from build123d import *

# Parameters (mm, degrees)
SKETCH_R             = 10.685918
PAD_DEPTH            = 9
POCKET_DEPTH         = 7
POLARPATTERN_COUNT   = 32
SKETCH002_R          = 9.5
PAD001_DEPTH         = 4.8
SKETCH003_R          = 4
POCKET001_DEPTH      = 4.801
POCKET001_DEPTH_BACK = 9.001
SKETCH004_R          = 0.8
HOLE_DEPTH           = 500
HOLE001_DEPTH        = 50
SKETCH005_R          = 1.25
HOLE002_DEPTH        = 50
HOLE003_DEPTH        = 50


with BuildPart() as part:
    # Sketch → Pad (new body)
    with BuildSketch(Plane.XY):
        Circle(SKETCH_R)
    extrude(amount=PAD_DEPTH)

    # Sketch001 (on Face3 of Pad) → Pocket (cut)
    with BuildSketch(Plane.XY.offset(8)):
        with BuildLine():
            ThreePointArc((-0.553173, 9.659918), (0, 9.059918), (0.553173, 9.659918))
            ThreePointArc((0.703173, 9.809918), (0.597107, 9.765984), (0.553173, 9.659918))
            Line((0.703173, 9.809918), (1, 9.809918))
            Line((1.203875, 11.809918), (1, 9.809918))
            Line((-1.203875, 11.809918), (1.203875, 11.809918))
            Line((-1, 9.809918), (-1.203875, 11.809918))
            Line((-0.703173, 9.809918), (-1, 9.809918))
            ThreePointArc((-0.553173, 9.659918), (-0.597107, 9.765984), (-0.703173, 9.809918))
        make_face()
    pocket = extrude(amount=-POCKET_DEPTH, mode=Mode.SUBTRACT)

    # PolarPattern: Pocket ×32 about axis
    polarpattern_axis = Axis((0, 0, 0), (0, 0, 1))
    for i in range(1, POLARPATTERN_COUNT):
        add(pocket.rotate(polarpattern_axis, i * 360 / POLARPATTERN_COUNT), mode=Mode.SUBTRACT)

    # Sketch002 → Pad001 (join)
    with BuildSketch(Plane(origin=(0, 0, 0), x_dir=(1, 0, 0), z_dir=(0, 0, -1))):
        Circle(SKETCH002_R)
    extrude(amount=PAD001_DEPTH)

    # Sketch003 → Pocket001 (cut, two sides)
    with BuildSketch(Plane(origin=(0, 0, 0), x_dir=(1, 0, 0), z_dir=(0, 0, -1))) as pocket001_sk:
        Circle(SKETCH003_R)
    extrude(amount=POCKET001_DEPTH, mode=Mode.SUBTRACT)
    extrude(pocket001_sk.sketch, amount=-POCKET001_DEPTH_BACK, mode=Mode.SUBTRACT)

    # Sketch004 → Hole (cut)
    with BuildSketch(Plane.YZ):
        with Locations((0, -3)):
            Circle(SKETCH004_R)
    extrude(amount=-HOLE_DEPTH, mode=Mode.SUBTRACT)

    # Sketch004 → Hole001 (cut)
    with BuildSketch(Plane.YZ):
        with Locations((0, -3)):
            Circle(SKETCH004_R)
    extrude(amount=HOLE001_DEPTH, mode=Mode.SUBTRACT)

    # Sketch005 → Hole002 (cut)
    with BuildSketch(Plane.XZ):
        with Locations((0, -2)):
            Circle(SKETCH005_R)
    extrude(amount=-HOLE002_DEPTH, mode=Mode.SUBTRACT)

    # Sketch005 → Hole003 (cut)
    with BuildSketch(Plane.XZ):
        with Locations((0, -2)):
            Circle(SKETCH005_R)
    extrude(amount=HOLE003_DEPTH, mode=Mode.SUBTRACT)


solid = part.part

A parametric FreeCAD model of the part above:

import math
import FreeCAD as App
import Part
import Sketcher
from FreeCAD import Vector

doc = App.newDocument("Part")
params = doc.addObject("Spreadsheet::Sheet", "Params")
for row, (alias, value) in enumerate([
    ("pad1_length", "9 mm"),
    ("sketch2_radius", "0.15 mm"),
    ("pocket1_length", "7 mm"),
    ("sketch3_diameter", "19 mm"),
    ("pad2_length", "4.8 mm"),
    ("sketch4_diameter", "8 mm"),
    ("sketch5_diameter", "1.6 mm"),
    ("pocket3_length", "500 mm"),
    ("sketch6_diameter", "1.6 mm"),
    ("pocket4_length", "50 mm"),
    ("sketch7_diameter", "2.5 mm"),
    ("pocket5_length", "50 mm"),
    ("sketch8_diameter", "2.5 mm"),
    ("pocket6_length", "50 mm"),
], start=1):
    params.set(f"A{row}", alias)
    params.set(f"B{row}", "=" + value)
    params.setAlias(f"B{row}", alias)

body = doc.addObject("PartDesign::Body", "Body")

# Sketch on XY plane
sketch1 = body.newObject("Sketcher::SketchObject", "Sketch")
sketch1.AttachmentSupport = (doc.getObject("XY_Plane"), [""])
sketch1.MapMode = "FlatFace"
sketch1.addGeometry(Part.Circle(Vector(0, 0, 0), Vector(0, 0, 1), 11), False)
sketch1.addConstraint(Sketcher.Constraint("Coincident", 0, 3, -1, 1))
sketch1.addConstraint(Sketcher.Constraint("Diameter", 0, 21.371836))
pad1 = body.newObject("PartDesign::Pad", "Pad")
pad1.Profile = sketch1
pad1.setExpression("Length", "Params.pad1_length")

# Sketch on XY plane
sketch2 = body.newObject("Sketcher::SketchObject", "Sketch001")
sketch2.AttachmentSupport = (doc.getObject("XY_Plane"), [""])
sketch2.MapMode = "FlatFace"
sketch2.AttachmentOffset = App.Placement(Vector(0, 0, 8), App.Rotation())
sketch2.addGeometry(Part.ArcOfCircle(Part.Circle(Vector(0, 9.61, 0), Vector(0, 0, 1), 0.56), math.radians(175), math.radians(365)), False)
sketch2.addGeometry(Part.ArcOfCircle(Part.Circle(Vector(0.7, 9.66, 0), Vector(0, 0, 1), 0.15), math.radians(90), math.radians(180)), False)
sketch2.addGeometry(Part.LineSegment(Vector(0.7, 9.81, 0), Vector(1, 9.81, 0)), False)
sketch2.addGeometry(Part.LineSegment(Vector(1, 9.81, 0), Vector(1.2, 11.81, 0)), False)
sketch2.addGeometry(Part.LineSegment(Vector(1.2, 11.81, 0), Vector(-1.2, 11.81, 0)), False)
sketch2.addGeometry(Part.LineSegment(Vector(-1.2, 11.81, 0), Vector(-1, 9.81, 0)), False)
sketch2.addGeometry(Part.LineSegment(Vector(-1, 9.81, 0), Vector(-0.7, 9.81, 0)), False)
sketch2.addGeometry(Part.ArcOfCircle(Part.Circle(Vector(-0.7, 9.66, 0), Vector(0, 0, 1), 0.15), math.radians(0), math.radians(90)), False)
sketch2.addConstraint(Sketcher.Constraint("Coincident", 0, 2, 1, 2))
sketch2.addConstraint(Sketcher.Constraint("Tangent", 1, 1, 2, 1))
sketch2.addConstraint(Sketcher.Constraint("Coincident", 2, 2, 3, 1))
sketch2.addConstraint(Sketcher.Constraint("Coincident", 3, 2, 4, 1))
sketch2.addConstraint(Sketcher.Constraint("Coincident", 4, 2, 5, 1))
sketch2.addConstraint(Sketcher.Constraint("Coincident", 5, 2, 6, 1))
sketch2.addConstraint(Sketcher.Constraint("Tangent", 6, 2, 7, 2))
sketch2.addConstraint(Sketcher.Constraint("Coincident", 7, 1, 0, 1))
sketch2.addConstraint(Sketcher.Constraint("Horizontal", 2))
sketch2.addConstraint(Sketcher.Constraint("Horizontal", 4))
sketch2.addConstraint(Sketcher.Constraint("Horizontal", 6))
sketch2.addConstraint(Sketcher.Constraint("Equal", 1, 7))
sketch2.addConstraint(Sketcher.Constraint("Symmetric", 1, 3, 7, 3, -2))
sketch2.addConstraint(Sketcher.Constraint("PointOnObject", 0, 3, -2))
sketch2.addConstraint(Sketcher.Constraint("Horizontal", 7, 3, 0, 2))
sketch2.addConstraint(Sketcher.Constraint("Equal", 2, 6))
sketch2.addConstraint(Sketcher.Constraint("Equal", 3, 5))
sketch2.addConstraint(Sketcher.Constraint("Radius", 1, 0.15))
sketch2.addConstraint(Sketcher.Constraint("DistanceX", -1, 1, 2, 2, 1.0))
sketch2.addConstraint(Sketcher.Constraint("Radius", 0, 0.555))
sketch2.addConstraint(Sketcher.Constraint("DistanceY", 2, 2, 3, 2, 2.0))
sketch2.addConstraint(Sketcher.Constraint("DistanceY", 0, 3, 1, 3, 0.045))
sketch2.addConstraint(Sketcher.Constraint("DistanceX", 4, 2, 4, 1, 2.40775))
sketch2.addConstraint(Sketcher.Constraint("DistanceY", -1, 1, 0, 3, 9.614918))
sketch2.setExpression("Constraints[17]", "Params.sketch2_radius")
pocket1 = body.newObject("PartDesign::Pocket", "Pocket")
pocket1.Profile = sketch2
pocket1.setExpression("Length", "Params.pocket1_length")
doc.recompute()

polarpattern = body.newObject("PartDesign::PolarPattern", "PolarPattern")
polarpattern.Originals = [pocket1]
polarpattern.Axis = (doc.getObject("Z_Axis"), [""])
polarpattern.Angle = 360
polarpattern.Occurrences = 32
body.Tip = polarpattern

# Sketch on XY plane
sketch3 = body.newObject("Sketcher::SketchObject", "Sketch002")
sketch3.AttachmentSupport = (doc.getObject("XY_Plane"), [""])
sketch3.MapMode = "FlatFace"
sketch3.addGeometry(Part.Circle(Vector(0, 0, 0), Vector(0, 0, 1), 10), False)
sketch3.addConstraint(Sketcher.Constraint("Coincident", 0, 3, -1, 1))
sketch3.addConstraint(Sketcher.Constraint("Diameter", 0, 19.0))
sketch3.setExpression("Constraints[1]", "Params.sketch3_diameter")
pad2 = body.newObject("PartDesign::Pad", "Pad001")
pad2.Profile = sketch3
pad2.setExpression("Length", "Params.pad2_length")
pad2.Reversed = True

# Sketch on XY plane
sketch4 = body.newObject("Sketcher::SketchObject", "Sketch003")
sketch4.AttachmentSupport = (doc.getObject("XY_Plane"), [""])
sketch4.MapMode = "FlatFace"
sketch4.addGeometry(Part.Circle(Vector(0, 0, 0), Vector(0, 0, 1), 4), False)
sketch4.addConstraint(Sketcher.Constraint("Coincident", 0, 3, -1, 1))
sketch4.addConstraint(Sketcher.Constraint("Diameter", 0, 8.0))
sketch4.setExpression("Constraints[1]", "Params.sketch4_diameter")
pocket2 = body.newObject("PartDesign::Pocket", "Pocket001")
pocket2.Profile = sketch4
pocket2.Type = "ThroughAll"
pocket2.Midplane = True

# Sketch on YZ plane
sketch5 = body.newObject("Sketcher::SketchObject", "Sketch004")
sketch5.AttachmentSupport = (doc.getObject("YZ_Plane"), [""])
sketch5.MapMode = "FlatFace"
sketch5.addGeometry(Part.Circle(Vector(0, -3, 0), Vector(0, 0, 1), 0.8), False)
sketch5.addConstraint(Sketcher.Constraint("PointOnObject", 0, 3, -2))
sketch5.addConstraint(Sketcher.Constraint("Diameter", 0, 1.6))
sketch5.addConstraint(Sketcher.Constraint("DistanceY", 0, 3, -1, 1, 3.0))
sketch5.setExpression("Constraints[1]", "Params.sketch5_diameter")
pocket3 = body.newObject("PartDesign::Pocket", "Pocket002")
pocket3.Profile = sketch5
pocket3.setExpression("Length", "Params.pocket3_length")

# Sketch on YZ plane
sketch6 = body.newObject("Sketcher::SketchObject", "Sketch005")
sketch6.AttachmentSupport = (doc.getObject("YZ_Plane"), [""])
sketch6.MapMode = "FlatFace"
sketch6.addGeometry(Part.Circle(Vector(0, -3, 0), Vector(0, 0, 1), 0.8), False)
sketch6.addConstraint(Sketcher.Constraint("PointOnObject", 0, 3, -2))
sketch6.addConstraint(Sketcher.Constraint("Diameter", 0, 1.6))
sketch6.addConstraint(Sketcher.Constraint("DistanceY", 0, 3, -1, 1, 3.0))
sketch6.setExpression("Constraints[1]", "Params.sketch6_diameter")
pocket4 = body.newObject("PartDesign::Pocket", "Pocket003")
pocket4.Profile = sketch6
pocket4.setExpression("Length", "Params.pocket4_length")
pocket4.Reversed = True

# Sketch on XZ plane
sketch7 = body.newObject("Sketcher::SketchObject", "Sketch006")
sketch7.AttachmentSupport = (doc.getObject("XZ_Plane"), [""])
sketch7.MapMode = "FlatFace"
sketch7.addGeometry(Part.Circle(Vector(0, -2, 0), Vector(0, 0, 1), 1.2), False)
sketch7.addConstraint(Sketcher.Constraint("PointOnObject", 0, 3, -2))
sketch7.addConstraint(Sketcher.Constraint("Diameter", 0, 2.5))
sketch7.addConstraint(Sketcher.Constraint("DistanceY", 0, 3, -1, 1, 2.0))
sketch7.setExpression("Constraints[1]", "Params.sketch7_diameter")
pocket5 = body.newObject("PartDesign::Pocket", "Pocket004")
pocket5.Profile = sketch7
pocket5.setExpression("Length", "Params.pocket5_length")

# Sketch on XZ plane
sketch8 = body.newObject("Sketcher::SketchObject", "Sketch007")
sketch8.AttachmentSupport = (doc.getObject("XZ_Plane"), [""])
sketch8.MapMode = "FlatFace"
sketch8.addGeometry(Part.Circle(Vector(0, -2, 0), Vector(0, 0, 1), 1.2), False)
sketch8.addConstraint(Sketcher.Constraint("PointOnObject", 0, 3, -2))
sketch8.addConstraint(Sketcher.Constraint("Diameter", 0, 2.5))
sketch8.addConstraint(Sketcher.Constraint("DistanceY", 0, 3, -1, 1, 2.0))
sketch8.setExpression("Constraints[1]", "Params.sketch8_diameter")
pocket6 = body.newObject("PartDesign::Pocket", "Pocket005")
pocket6.Profile = sketch8
pocket6.setExpression("Length", "Params.pocket6_length")
pocket6.Reversed = True

doc.recompute()
